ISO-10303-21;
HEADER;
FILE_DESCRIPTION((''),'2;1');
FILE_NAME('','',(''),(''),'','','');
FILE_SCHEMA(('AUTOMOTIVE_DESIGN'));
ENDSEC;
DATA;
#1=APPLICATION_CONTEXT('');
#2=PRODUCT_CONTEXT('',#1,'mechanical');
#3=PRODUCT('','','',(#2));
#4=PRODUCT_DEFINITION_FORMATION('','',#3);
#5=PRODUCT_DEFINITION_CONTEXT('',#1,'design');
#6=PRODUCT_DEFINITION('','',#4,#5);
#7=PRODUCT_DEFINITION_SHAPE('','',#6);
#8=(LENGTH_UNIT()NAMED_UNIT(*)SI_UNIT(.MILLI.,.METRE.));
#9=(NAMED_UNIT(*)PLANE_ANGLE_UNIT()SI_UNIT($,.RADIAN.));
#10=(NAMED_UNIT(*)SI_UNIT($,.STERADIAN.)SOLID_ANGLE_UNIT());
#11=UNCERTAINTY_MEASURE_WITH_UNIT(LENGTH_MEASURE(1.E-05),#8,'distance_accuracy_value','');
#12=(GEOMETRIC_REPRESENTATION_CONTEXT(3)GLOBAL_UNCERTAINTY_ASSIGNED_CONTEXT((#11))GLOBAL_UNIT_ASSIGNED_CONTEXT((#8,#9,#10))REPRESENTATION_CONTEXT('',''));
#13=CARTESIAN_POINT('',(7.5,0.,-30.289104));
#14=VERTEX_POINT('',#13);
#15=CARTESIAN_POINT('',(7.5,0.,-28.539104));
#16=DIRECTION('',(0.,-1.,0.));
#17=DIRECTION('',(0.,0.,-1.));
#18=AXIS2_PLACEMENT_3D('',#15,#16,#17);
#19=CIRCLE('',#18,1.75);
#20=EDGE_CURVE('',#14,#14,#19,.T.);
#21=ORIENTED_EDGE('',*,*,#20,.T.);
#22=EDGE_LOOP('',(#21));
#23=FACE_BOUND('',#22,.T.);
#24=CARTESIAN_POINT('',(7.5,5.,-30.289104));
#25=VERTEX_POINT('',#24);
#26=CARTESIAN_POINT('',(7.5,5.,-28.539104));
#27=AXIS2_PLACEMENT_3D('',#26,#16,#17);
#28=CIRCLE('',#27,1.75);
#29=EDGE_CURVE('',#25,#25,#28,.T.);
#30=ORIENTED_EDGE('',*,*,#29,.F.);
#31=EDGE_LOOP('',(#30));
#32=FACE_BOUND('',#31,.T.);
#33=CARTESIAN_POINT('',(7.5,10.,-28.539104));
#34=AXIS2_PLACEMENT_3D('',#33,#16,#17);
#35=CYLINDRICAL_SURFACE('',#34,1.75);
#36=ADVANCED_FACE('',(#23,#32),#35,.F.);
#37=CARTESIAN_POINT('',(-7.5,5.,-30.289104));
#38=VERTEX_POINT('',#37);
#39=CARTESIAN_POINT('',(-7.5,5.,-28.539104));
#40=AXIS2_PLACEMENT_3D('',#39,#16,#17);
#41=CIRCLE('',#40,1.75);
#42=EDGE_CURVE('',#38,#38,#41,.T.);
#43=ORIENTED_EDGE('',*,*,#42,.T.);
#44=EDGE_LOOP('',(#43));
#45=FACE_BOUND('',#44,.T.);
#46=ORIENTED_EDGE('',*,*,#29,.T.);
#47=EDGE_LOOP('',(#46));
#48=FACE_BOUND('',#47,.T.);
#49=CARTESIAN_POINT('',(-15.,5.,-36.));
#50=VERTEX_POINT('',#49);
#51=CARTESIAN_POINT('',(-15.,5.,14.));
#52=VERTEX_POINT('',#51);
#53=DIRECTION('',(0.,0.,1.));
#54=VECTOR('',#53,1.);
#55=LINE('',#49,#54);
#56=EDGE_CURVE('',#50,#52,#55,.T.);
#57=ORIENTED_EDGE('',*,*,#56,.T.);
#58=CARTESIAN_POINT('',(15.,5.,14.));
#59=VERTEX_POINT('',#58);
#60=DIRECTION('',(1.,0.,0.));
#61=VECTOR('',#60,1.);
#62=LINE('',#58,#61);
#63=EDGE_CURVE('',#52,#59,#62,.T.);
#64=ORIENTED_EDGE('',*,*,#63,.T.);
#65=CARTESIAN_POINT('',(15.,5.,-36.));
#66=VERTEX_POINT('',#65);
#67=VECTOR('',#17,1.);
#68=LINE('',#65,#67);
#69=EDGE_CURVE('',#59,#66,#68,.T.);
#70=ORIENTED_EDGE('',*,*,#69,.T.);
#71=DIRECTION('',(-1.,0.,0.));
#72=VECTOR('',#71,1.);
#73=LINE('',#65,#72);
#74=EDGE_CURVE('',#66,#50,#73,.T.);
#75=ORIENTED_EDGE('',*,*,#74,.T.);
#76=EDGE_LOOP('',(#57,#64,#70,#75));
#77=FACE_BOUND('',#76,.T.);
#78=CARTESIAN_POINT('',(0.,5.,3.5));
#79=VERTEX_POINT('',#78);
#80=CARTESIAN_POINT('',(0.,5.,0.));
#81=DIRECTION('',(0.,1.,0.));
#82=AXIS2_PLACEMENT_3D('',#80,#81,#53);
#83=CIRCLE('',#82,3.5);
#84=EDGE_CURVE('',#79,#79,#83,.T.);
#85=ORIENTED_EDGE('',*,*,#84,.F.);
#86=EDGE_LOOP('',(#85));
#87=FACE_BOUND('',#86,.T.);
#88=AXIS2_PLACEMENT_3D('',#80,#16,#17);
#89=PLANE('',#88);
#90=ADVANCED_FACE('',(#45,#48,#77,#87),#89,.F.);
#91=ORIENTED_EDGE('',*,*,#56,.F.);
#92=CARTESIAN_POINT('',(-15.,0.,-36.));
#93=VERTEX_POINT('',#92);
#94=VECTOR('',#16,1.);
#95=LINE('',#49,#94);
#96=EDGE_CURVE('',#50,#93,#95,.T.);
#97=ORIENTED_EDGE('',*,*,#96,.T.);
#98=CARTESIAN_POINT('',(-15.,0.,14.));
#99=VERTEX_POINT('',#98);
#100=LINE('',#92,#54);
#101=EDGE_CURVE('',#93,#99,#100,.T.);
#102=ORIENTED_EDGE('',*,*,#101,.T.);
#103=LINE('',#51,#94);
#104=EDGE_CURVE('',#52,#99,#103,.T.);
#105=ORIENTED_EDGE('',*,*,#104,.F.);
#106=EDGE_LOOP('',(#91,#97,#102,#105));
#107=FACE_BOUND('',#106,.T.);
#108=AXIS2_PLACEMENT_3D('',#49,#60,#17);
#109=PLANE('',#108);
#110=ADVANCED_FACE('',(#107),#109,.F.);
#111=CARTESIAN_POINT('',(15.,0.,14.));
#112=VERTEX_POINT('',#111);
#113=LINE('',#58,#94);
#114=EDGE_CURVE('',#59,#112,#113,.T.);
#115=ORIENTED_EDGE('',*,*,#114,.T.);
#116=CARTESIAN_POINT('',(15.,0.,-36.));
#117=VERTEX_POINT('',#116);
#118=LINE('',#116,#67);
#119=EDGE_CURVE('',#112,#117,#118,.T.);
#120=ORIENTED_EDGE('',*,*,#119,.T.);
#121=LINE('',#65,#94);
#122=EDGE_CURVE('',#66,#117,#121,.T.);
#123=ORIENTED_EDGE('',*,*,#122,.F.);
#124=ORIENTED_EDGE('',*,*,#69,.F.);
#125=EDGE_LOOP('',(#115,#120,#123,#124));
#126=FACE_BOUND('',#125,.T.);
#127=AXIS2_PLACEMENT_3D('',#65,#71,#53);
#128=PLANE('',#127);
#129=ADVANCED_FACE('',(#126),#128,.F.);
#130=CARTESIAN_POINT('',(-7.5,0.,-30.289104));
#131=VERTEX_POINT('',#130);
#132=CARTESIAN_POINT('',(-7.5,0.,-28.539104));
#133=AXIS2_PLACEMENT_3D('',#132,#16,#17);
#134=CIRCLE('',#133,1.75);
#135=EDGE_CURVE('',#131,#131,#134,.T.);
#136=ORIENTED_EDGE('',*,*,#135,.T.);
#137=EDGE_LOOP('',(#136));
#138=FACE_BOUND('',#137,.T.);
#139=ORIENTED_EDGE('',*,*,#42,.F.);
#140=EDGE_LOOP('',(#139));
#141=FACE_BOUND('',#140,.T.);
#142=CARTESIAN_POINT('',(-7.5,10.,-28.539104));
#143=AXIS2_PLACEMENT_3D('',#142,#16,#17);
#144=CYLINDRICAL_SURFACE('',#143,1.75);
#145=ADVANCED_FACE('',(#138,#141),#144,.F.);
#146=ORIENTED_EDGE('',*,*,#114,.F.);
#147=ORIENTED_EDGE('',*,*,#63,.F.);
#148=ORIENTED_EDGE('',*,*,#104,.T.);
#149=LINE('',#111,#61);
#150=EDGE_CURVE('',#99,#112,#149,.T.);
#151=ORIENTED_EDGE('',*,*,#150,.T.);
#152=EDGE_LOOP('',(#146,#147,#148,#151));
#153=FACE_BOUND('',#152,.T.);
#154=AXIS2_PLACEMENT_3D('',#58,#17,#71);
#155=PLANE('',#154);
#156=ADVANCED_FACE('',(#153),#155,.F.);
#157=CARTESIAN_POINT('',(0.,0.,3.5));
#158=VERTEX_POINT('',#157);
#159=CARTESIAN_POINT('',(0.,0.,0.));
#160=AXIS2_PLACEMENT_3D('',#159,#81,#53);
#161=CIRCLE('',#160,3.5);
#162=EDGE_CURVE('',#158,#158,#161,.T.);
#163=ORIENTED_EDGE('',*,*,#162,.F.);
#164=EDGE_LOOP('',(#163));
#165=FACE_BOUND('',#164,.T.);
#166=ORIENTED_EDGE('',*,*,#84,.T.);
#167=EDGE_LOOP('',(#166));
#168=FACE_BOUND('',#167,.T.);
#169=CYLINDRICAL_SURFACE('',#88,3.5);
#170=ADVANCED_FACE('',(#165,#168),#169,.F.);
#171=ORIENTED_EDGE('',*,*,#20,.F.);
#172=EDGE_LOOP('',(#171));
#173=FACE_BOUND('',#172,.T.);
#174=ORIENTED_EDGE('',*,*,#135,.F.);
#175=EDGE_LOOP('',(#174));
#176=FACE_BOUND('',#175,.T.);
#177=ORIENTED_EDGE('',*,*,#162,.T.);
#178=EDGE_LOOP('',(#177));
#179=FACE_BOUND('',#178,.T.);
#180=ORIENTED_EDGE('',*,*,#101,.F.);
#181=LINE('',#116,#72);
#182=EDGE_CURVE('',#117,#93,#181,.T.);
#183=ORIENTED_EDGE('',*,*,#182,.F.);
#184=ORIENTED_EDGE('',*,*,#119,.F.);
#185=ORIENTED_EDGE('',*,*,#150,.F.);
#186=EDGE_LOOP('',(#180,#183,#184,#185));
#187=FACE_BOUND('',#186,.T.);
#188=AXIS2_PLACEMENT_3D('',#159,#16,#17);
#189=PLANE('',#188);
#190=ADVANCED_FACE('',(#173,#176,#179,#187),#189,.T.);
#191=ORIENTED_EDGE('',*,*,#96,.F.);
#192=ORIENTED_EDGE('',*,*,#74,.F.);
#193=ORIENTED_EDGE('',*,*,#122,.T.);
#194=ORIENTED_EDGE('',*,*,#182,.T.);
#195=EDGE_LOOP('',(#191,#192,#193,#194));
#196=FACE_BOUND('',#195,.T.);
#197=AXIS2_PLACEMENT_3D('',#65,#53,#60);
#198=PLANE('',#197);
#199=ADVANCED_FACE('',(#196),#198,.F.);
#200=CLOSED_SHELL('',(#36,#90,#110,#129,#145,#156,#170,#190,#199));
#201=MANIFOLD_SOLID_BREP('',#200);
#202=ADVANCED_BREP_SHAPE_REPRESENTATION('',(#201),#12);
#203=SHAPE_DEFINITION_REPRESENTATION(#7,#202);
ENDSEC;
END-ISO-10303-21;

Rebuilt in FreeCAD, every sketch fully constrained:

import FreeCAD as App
import Part
import Sketcher

V = App.Vector


def add_polygon(sketch, points):
    """Adds a closed chain of lines whose ends are joined by coincident constraints."""
    first, n = sketch.GeometryCount, len(points)
    for a, b in zip(points, points[1:] + points[:1]):
        sketch.addGeometry(Part.LineSegment(App.Vector(*a, 0), App.Vector(*b, 0)), False)
    for i in range(n):
        sketch.addConstraint(Sketcher.Constraint("Coincident", first + i, 2, first + (i + 1) % n, 1))

doc = App.newDocument("Part")
body = doc.addObject("PartDesign::Body", "Body")

# Sketch on XZ plane
sketch1 = doc.addObject("Sketcher::SketchObject", "Sketch")
body.addObject(sketch1)
sketch1.AttachmentSupport = (doc.XZ_Plane, [""])
sketch1.MapMode = "FlatFace"
add_polygon(sketch1, [(-15, -36), (-15, 14), (15, 14), (15, -36)])  # lines 0-3
sketch1.addGeometry(Part.Circle(V(0, 0, 0), V(0, 0, 1), 3.5), False)  # 4
sketch1.addConstraint(Sketcher.Constraint("Vertical", 0))
sketch1.addConstraint(Sketcher.Constraint("Horizontal", 1))
sketch1.addConstraint(Sketcher.Constraint("Vertical", 2))
sketch1.addConstraint(Sketcher.Constraint("Horizontal", 3))
sketch1.addConstraint(Sketcher.Constraint("Coincident", 4, 3, -1, 1))
sketch1.addConstraint(Sketcher.Constraint("Diameter", 4, 7.0))
sketch1.addConstraint(Sketcher.Constraint("DistanceX", 1, 1, 1, 2, 30.0))
sketch1.addConstraint(Sketcher.Constraint("DistanceY", 0, 1, 0, 2, 50.0))
sketch1.addConstraint(Sketcher.Constraint("DistanceX", 0, 2, -1, 1, 15.0))
sketch1.addConstraint(Sketcher.Constraint("DistanceY", -1, 1, 0, 2, 14.0))
pad1 = doc.addObject("PartDesign::Pad", "Pad")
body.addObject(pad1)
pad1.Profile = sketch1
pad1.Length = 5
pad1.Reversed = True

# Sketch on XZ plane
sketch2 = doc.addObject("Sketcher::SketchObject", "Sketch001")
body.addObject(sketch2)
sketch2.AttachmentSupport = (doc.XZ_Plane, [""])
sketch2.MapMode = "FlatFace"
sketch2.addGeometry(Part.Circle(V(7.5, -28.5, 0), V(0, 0, 1), 1.8), False)
sketch2.addGeometry(Part.Circle(V(-7.5, -28.5, 0), V(0, 0, 1), 1.8), False)
sketch2.addConstraint(Sketcher.Constraint("Equal", 0, 1))
sketch2.addConstraint(Sketcher.Constraint("Symmetric", 0, 3, 1, 3, -2))
sketch2.addConstraint(Sketcher.Constraint("Diameter", 0, 3.5))
sketch2.addConstraint(Sketcher.Constraint("DistanceX", 1, 3, 0, 3, 15.0))
sketch2.addConstraint(Sketcher.Constraint("DistanceY", 0, 3, -1, 1, 28.539104))
pocket1 = doc.addObject("PartDesign::Pocket", "Pocket")
body.addObject(pocket1)
pocket1.Profile = sketch2
pocket1.Length = 10

doc.recompute()
